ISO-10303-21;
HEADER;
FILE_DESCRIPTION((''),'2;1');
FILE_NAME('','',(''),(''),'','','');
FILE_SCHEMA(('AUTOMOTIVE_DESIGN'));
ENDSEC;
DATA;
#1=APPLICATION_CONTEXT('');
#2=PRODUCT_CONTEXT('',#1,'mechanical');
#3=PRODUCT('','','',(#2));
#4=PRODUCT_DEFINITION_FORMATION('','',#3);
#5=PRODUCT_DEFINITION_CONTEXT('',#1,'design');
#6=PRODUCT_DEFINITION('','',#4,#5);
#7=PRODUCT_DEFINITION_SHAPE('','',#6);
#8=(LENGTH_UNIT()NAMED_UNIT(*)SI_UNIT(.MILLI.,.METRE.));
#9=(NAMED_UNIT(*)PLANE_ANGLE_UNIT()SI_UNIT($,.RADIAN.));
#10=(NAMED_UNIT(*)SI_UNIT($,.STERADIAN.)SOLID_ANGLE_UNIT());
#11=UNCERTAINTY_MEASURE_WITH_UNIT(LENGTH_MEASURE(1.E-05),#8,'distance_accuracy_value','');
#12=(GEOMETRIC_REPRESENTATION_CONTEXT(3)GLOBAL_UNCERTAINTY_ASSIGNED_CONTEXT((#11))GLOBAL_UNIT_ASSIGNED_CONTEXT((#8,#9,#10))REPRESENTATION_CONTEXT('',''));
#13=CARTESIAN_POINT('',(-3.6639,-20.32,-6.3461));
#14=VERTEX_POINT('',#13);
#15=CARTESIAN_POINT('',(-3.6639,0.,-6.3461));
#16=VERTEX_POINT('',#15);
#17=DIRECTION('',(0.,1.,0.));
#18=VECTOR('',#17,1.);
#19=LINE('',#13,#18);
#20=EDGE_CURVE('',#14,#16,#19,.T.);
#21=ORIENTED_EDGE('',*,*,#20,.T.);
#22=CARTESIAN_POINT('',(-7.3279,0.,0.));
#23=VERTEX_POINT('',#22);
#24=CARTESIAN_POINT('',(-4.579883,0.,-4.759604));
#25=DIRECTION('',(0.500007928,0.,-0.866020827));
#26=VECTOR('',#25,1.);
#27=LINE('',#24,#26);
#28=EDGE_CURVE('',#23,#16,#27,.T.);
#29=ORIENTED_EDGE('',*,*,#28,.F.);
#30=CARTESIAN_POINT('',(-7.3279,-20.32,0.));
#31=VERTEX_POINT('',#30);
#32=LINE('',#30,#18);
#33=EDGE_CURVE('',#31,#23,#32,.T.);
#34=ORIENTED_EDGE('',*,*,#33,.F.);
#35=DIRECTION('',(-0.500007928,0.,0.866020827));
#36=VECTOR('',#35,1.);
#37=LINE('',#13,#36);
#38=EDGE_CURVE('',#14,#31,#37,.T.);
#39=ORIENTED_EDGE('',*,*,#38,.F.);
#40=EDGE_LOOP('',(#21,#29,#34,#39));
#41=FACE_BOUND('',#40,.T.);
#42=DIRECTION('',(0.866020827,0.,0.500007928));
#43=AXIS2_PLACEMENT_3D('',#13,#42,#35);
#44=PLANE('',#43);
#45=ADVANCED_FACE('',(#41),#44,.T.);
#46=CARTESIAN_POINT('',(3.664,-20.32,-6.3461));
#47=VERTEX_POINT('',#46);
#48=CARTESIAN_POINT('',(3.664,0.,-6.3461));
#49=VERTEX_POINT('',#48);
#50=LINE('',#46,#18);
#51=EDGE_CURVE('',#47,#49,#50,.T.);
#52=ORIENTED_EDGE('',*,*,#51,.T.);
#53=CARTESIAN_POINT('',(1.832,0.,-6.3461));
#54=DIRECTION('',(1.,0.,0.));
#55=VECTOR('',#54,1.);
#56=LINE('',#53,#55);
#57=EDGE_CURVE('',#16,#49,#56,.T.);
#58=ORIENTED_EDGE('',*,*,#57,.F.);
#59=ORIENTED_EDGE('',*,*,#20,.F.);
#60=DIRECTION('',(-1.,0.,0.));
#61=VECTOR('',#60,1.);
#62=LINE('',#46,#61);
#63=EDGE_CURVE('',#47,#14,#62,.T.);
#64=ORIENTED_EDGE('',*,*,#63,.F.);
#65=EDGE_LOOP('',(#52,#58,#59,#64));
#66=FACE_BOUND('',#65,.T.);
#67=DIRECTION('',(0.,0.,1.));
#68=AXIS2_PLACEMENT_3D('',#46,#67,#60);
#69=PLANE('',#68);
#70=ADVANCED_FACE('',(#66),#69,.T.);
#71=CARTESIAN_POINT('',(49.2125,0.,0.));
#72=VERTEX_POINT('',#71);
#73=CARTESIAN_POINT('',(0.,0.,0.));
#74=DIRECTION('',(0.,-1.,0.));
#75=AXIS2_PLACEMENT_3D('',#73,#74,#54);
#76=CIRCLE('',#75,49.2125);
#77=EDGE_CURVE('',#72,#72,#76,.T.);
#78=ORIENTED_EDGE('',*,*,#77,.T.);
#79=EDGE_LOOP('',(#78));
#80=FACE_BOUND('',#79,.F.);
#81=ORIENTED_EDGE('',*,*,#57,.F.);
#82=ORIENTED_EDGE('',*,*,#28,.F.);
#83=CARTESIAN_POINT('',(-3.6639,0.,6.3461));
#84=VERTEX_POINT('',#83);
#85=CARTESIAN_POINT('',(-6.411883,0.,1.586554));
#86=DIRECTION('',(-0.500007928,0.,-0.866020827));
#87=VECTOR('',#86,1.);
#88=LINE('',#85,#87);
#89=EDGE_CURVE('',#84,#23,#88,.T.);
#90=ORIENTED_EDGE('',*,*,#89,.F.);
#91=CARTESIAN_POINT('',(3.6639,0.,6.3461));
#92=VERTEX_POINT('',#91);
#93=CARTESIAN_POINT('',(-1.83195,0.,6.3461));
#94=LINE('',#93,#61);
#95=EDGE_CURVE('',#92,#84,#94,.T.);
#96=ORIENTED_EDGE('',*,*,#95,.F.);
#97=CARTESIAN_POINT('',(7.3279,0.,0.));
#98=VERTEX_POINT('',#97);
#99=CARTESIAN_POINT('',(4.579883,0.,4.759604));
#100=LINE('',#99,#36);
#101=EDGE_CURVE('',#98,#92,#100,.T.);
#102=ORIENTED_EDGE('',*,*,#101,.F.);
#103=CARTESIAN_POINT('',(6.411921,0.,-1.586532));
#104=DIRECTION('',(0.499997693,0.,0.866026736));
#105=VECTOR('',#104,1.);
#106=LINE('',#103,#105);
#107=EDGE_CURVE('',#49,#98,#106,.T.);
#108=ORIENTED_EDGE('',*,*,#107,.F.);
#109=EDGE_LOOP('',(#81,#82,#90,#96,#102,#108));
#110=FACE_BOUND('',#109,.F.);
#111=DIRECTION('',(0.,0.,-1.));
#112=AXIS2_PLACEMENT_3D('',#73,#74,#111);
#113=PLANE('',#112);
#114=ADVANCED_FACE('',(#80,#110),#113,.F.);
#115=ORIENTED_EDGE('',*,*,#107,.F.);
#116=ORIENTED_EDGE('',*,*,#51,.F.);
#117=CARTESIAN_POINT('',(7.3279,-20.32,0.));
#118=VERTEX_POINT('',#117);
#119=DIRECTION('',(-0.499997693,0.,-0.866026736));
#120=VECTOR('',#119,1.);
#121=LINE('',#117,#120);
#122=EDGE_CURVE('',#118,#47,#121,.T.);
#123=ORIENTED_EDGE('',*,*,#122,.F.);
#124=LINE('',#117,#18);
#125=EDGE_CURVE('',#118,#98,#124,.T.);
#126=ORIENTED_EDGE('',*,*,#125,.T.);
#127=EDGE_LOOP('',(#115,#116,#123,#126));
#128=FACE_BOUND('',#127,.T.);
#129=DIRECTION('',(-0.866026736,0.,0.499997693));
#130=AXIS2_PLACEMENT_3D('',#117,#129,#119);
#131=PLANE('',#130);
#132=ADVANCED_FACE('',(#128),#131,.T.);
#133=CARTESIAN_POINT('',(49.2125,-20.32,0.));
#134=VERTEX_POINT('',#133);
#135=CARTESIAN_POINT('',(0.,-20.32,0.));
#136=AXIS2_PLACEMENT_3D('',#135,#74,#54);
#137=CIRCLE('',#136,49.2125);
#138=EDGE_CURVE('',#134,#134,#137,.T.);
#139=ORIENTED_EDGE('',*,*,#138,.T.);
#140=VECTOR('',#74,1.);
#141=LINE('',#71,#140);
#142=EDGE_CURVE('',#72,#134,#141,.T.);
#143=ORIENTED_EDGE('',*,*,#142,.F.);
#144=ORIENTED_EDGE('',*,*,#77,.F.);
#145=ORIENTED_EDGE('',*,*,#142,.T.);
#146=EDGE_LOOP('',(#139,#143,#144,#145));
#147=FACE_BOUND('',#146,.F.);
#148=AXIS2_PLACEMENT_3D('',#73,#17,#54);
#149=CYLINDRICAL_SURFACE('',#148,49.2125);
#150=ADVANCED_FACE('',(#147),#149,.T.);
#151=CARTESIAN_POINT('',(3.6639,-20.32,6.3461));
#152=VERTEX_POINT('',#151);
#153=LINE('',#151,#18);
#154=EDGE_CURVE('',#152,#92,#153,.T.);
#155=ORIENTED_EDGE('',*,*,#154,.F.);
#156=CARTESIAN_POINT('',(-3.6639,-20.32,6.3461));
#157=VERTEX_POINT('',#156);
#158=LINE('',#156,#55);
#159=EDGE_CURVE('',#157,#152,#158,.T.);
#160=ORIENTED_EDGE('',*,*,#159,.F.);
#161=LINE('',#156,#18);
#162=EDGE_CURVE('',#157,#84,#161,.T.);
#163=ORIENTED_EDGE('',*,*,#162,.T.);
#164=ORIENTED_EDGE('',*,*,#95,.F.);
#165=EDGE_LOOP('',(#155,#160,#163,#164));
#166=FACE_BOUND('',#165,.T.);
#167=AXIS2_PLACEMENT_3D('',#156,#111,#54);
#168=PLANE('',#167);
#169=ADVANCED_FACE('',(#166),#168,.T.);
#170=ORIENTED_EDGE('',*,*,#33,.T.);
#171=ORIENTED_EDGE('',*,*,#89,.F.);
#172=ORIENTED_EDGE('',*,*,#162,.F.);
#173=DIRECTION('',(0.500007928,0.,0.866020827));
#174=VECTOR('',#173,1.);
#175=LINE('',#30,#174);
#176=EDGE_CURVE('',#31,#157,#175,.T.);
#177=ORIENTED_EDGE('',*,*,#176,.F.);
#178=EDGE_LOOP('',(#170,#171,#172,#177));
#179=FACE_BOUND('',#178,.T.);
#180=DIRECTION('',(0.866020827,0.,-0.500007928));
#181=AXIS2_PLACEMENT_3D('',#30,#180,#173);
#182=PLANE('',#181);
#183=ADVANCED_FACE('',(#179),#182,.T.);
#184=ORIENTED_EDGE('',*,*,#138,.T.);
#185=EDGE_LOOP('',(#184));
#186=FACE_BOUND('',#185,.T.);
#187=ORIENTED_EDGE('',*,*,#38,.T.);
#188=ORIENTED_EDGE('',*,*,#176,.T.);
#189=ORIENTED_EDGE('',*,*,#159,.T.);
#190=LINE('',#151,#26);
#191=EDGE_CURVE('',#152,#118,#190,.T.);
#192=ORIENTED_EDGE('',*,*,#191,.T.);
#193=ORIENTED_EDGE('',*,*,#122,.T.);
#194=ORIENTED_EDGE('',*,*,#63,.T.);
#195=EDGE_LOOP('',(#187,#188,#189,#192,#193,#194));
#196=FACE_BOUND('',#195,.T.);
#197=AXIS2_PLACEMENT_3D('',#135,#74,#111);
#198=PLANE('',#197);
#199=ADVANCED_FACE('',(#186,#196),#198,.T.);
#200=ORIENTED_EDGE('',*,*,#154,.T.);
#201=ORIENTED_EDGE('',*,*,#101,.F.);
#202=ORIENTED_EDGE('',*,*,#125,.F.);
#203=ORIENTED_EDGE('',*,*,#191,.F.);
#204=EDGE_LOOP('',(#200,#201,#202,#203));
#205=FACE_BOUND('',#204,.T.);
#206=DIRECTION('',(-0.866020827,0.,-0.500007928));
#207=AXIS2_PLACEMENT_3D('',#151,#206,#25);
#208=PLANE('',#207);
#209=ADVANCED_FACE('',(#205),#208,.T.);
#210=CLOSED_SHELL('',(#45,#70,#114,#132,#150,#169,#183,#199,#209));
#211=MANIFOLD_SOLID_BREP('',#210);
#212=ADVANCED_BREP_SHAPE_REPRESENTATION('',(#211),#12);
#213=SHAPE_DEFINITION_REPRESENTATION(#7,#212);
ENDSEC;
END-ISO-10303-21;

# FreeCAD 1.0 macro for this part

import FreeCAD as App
import Part
import Sketcher

V = App.Vector
Q = App.Units.Quantity


def add_polygon(sketch, points):
    """Adds a closed chain of lines whose ends are joined by coincident constraints."""
    first, n = sketch.GeometryCount, len(points)
    for a, b in zip(points, points[1:] + points[:1]):
        sketch.addGeometry(Part.LineSegment(App.Vector(*a, 0), App.Vector(*b, 0)), False)
    for i in range(n):
        sketch.addConstraint(Sketcher.Constraint("Coincident", first + i, 2, first + (i + 1) % n, 1))

doc = App.newDocument("Part")
body = doc.addObject("PartDesign::Body", "Body")

# Sketch on XZ plane
sketch1 = doc.addObject("Sketcher::SketchObject", "Sketch")
body.addObject(sketch1)
sketch1.AttachmentSupport = (doc.XZ_Plane, [""])
sketch1.MapMode = "FlatFace"
sketch1.addGeometry(Part.Circle(V(0, 0, 0), V(0, 0, 1), 49.2125), False)
sketch1.addConstraint(Sketcher.Constraint("Coincident", 0, 3, -1, 1))
sketch1.addConstraint(Sketcher.Constraint("Diameter", 0, Q("3.875 in")))
pad1 = doc.addObject("PartDesign::Pad", "Pad")
body.addObject(pad1)
pad1.Profile = sketch1
pad1.Length = Q("0.8 in")

# Sketch on XZ plane
sketch2 = doc.addObject("Sketcher::SketchObject", "Sketch001")
body.addObject(sketch2)
sketch2.AttachmentSupport = (doc.XZ_Plane, [""])
sketch2.MapMode = "FlatFace"
sketch2.AttachmentOffset = App.Placement(V(0, 0, 0.8 * 25.4), App.Rotation())
add_polygon(sketch2, [(3.6639, 6.3461), (-3.6639, 6.3461), (-7.3279, 0), (-3.6639, -6.3461), (3.664, -6.3461), (7.3279, 0)])  # lines 0-5
sketch2.addConstraint(Sketcher.Constraint("Horizontal", 0))
sketch2.addConstraint(Sketcher.Constraint("Horizontal", 3))
sketch2.addConstraint(Sketcher.Constraint("Symmetric", 0, 2, 3, 2, -1, 1))
sketch2.addConstraint(Sketcher.Constraint("Symmetric", 1, 2, 4, 2, -1, 1))
sketch2.addConstraint(Sketcher.Constraint("PointOnObject", 1, 2, -1))
sketch2.addConstraint(Sketcher.Constraint("Parallel", 2, 5))
sketch2.addConstraint(Sketcher.Constraint("Vertical", 0, 2, 2, 2))
sketch2.addConstraint(Sketcher.Constraint("Angle", 1, Q("-120.0005 deg")))
sketch2.addConstraint(Sketcher.Constraint("DistanceX", 0, 2, 0, 1, Q("0.2885 in")))
sketch2.addConstraint(Sketcher.Constraint("DistanceX", 1, 2, 4, 2, Q("0.577 in")))
pocket1 = doc.addObject("PartDesign::Pocket", "Pocket")
body.addObject(pocket1)
pocket1.Profile = sketch2
pocket1.Type = "UpToFirst"

doc.recompute()
